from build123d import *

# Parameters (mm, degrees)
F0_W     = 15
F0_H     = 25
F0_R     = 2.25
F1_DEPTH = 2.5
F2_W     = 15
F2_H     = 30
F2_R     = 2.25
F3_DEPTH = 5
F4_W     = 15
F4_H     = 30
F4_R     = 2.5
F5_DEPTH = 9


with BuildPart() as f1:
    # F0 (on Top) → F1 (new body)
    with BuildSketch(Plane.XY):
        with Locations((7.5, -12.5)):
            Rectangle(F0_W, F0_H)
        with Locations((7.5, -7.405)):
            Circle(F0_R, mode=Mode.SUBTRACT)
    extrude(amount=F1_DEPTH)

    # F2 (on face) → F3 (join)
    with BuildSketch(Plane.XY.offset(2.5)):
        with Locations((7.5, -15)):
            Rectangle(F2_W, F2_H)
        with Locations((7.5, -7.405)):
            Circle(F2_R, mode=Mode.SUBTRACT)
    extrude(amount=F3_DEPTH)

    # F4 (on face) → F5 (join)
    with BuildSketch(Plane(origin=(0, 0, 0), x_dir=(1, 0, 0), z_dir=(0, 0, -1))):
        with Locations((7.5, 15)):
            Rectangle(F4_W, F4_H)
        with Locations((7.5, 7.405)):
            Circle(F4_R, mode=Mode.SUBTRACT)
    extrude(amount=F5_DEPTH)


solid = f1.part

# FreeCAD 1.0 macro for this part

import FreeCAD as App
import Part
import Sketcher

V = App.Vector

doc = App.newDocument("Part")
body = doc.addObject("PartDesign::Body", "Body")

# Sketch on XY plane
sketch1 = body.newObject("Sketcher::SketchObject", "Sketch")
sketch1.AttachmentSupport = (doc.getObject("XY_Plane"), [""])
sketch1.MapMode = "FlatFace"
sketch1.addGeometry(Part.LineSegment(V(0, 0, 0), V(0, -25, 0)), False)
sketch1.addGeometry(Part.LineSegment(V(0, -25, 0), V(15, -25, 0)), False)
sketch1.addGeometry(Part.LineSegment(V(15, -25, 0), V(15, 0, 0)), False)
sketch1.addGeometry(Part.LineSegment(V(15, 0, 0), V(0, 0, 0)), False)
sketch1.addGeometry(Part.Circle(V(7.5, -7.4, 0), V(0, 0, 1), 2.2), False)
sketch1.addConstraint(Sketcher.Constraint("Coincident", 0, 2, 1, 1))
sketch1.addConstraint(Sketcher.Constraint("Coincident", 1, 2, 2, 1))
sketch1.addConstraint(Sketcher.Constraint("Coincident", 2, 2, 3, 1))
sketch1.addConstraint(Sketcher.Constraint("Coincident", 3, 2, 0, 1))
sketch1.addConstraint(Sketcher.Constraint("Vertical", 0))
sketch1.addConstraint(Sketcher.Constraint("Horizontal", 1))
sketch1.addConstraint(Sketcher.Constraint("Vertical", 2))
sketch1.addConstraint(Sketcher.Constraint("Horizontal", 3))
sketch1.addConstraint(Sketcher.Constraint("Coincident", 3, 2, -1, 1))
sketch1.addConstraint(Sketcher.Constraint("Diameter", 4, 4.5))
sketch1.addConstraint(Sketcher.Constraint("DistanceX", 1, 1, 1, 2, 15.0))
sketch1.addConstraint(Sketcher.Constraint("DistanceY", 0, 2, 0, 1, 25.0))
sketch1.addConstraint(Sketcher.Constraint("DistanceX", -1, 1, 4, 3, 7.5))
sketch1.addConstraint(Sketcher.Constraint("DistanceY", 4, 3, -1, 1, 7.405))
pad1 = body.newObject("PartDesign::Pad", "Pad")
pad1.Profile = sketch1
pad1.Length = 2.5

# Sketch on XY plane
sketch2 = body.newObject("Sketcher::SketchObject", "Sketch001")
sketch2.AttachmentSupport = (doc.getObject("XY_Plane"), [""])
sketch2.MapMode = "FlatFace"
sketch2.AttachmentOffset = App.Placement(V(0, 0, 2.5), App.Rotation())
sketch2.addGeometry(Part.LineSegment(V(0, 0, 0), V(0, -30, 0)), False)
sketch2.addGeometry(Part.LineSegment(V(0, -30, 0), V(15, -30, 0)), False)
sketch2.addGeometry(Part.LineSegment(V(15, -30, 0), V(15, 0, 0)), False)
sketch2.addGeometry(Part.LineSegment(V(15, 0, 0), V(0, 0, 0)), False)
sketch2.addGeometry(Part.Circle(V(7.5, -7.4, 0), V(0, 0, 1), 2.2), False)
sketch2.addConstraint(Sketcher.Constraint("Coincident", 0, 2, 1, 1))
sketch2.addConstraint(Sketcher.Constraint("Coincident", 1, 2, 2, 1))
sketch2.addConstraint(Sketcher.Constraint("Coincident", 2, 2, 3, 1))
sketch2.addConstraint(Sketcher.Constraint("Coincident", 3, 2, 0, 1))
sketch2.addConstraint(Sketcher.Constraint("Vertical", 0))
sketch2.addConstraint(Sketcher.Constraint("Horizontal", 1))
sketch2.addConstraint(Sketcher.Constraint("Vertical", 2))
sketch2.addConstraint(Sketcher.Constraint("Horizontal", 3))
sketch2.addConstraint(Sketcher.Constraint("Coincident", 3, 2, -1, 1))
sketch2.addConstraint(Sketcher.Constraint("Diameter", 4, 4.5))
sketch2.addConstraint(Sketcher.Constraint("DistanceX", 1, 1, 1, 2, 15.0))
sketch2.addConstraint(Sketcher.Constraint("DistanceY", 0, 2, 0, 1, 30.0))
sketch2.addConstraint(Sketcher.Constraint("DistanceX", -1, 1, 4, 3, 7.5))
sketch2.addConstraint(Sketcher.Constraint("DistanceY", 4, 3, -1, 1, 7.405))
pad2 = body.newObject("PartDesign::Pad", "Pad001")
pad2.Profile = sketch2
pad2.Length = 5

# Sketch on XY plane
sketch3 = body.newObject("Sketcher::SketchObject", "Sketch002")
sketch3.AttachmentSupport = (doc.getObject("XY_Plane"), [""])
sketch3.MapMode = "FlatFace"
sketch3.addGeometry(Part.LineSegment(V(0, -30, 0), V(0, 0, 0)), False)
sketch3.addGeometry(Part.LineSegment(V(0, 0, 0), V(15, 0, 0)), False)
sketch3.addGeometry(Part.LineSegment(V(15, 0, 0), V(15, -30, 0)), False)
sketch3.addGeometry(Part.LineSegment(V(15, -30, 0), V(0, -30, 0)), False)
sketch3.addGeometry(Part.Circle(V(7.5, -7.4, 0), V(0, 0, 1), 2.5), False)
sketch3.addConstraint(Sketcher.Constraint("Coincident", 0, 2, 1, 1))
sketch3.addConstraint(Sketcher.Constraint("Coincident", 1, 2, 2, 1))
sketch3.addConstraint(Sketcher.Constraint("Coincident", 2, 2, 3, 1))
sketch3.addConstraint(Sketcher.Constraint("Coincident", 3, 2, 0, 1))
sketch3.addConstraint(Sketcher.Constraint("Vertical", 0))
sketch3.addConstraint(Sketcher.Constraint("Horizontal", 1))
sketch3.addConstraint(Sketcher.Constraint("Vertical", 2))
sketch3.addConstraint(Sketcher.Constraint("Horizontal", 3))
sketch3.addConstraint(Sketcher.Constraint("Coincident", 0, 2, -1, 1))
sketch3.addConstraint(Sketcher.Constraint("Diameter", 4, 5.0))
sketch3.addConstraint(Sketcher.Constraint("DistanceX", 1, 1, 1, 2, 15.0))
sketch3.addConstraint(Sketcher.Constraint("DistanceY", 0, 1, 0, 2, 30.0))
sketch3.addConstraint(Sketcher.Constraint("DistanceX", -1, 1, 4, 3, 7.5))
sketch3.addConstraint(Sketcher.Constraint("DistanceY", 4, 3, -1, 1, 7.405))
pad3 = body.newObject("PartDesign::Pad", "Pad002")
pad3.Profile = sketch3
pad3.Length = 9
pad3.Reversed = True

doc.recompute()
